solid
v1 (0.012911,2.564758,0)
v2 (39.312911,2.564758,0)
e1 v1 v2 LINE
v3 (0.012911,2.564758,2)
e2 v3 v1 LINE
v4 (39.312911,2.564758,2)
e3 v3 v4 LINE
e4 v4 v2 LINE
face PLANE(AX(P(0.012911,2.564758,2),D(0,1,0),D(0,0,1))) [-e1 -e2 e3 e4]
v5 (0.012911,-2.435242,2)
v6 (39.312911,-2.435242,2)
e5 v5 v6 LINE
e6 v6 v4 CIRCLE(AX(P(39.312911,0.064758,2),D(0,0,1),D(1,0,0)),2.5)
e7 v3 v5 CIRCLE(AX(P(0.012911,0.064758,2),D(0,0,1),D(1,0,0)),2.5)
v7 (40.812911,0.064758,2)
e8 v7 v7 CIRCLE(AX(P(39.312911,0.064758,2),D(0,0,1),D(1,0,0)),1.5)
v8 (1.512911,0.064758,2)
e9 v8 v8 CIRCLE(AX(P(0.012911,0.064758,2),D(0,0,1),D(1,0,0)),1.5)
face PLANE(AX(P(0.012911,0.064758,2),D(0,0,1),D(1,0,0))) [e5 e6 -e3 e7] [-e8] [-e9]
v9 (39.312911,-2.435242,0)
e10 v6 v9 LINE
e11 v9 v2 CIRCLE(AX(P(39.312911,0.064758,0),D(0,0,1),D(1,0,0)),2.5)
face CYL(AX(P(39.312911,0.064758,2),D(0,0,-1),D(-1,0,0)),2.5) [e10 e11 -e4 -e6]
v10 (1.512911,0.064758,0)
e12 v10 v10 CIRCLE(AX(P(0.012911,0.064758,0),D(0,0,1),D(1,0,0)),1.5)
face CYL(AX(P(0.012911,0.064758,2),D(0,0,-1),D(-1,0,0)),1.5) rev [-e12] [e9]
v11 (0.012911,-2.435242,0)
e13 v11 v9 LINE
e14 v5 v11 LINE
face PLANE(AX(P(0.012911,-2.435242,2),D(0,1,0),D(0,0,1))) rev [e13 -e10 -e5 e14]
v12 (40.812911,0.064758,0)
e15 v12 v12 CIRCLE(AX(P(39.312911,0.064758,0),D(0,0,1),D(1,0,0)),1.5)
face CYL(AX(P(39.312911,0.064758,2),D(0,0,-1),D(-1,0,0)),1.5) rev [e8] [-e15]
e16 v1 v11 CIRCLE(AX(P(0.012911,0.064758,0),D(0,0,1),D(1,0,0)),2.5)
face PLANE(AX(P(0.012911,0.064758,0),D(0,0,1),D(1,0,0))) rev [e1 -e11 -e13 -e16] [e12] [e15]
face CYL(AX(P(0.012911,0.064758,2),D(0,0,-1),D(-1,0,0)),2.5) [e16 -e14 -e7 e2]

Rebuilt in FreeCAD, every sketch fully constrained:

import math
import FreeCAD as App
import Part
import Sketcher
Q = App.Units.Quantity

doc = App.newDocument("Part")
body = doc.addObject("PartDesign::Body", "Body")

# Sketch on XY plane
sketch1 = body.newObject("Sketcher::SketchObject", "Sketch")
sketch1.AttachmentSupport = (doc.getObject("XY_Plane"), [""])
sketch1.MapMode = "FlatFace"
sketch1.addGeometry(Part.LineSegment(App.Vector(39.3, 2.6, 0), App.Vector(0, 2.6, 0)), False)
sketch1.addGeometry(Part.ArcOfCircle(Part.Circle(App.Vector(0, 0.1, 0), App.Vector(0, 0, 1), 2.5), math.radians(90), math.radians(270)), False)
sketch1.addGeometry(Part.LineSegment(App.Vector(0, -2.4, 0), App.Vector(39.3, -2.4, 0)), False)
sketch1.addGeometry(Part.ArcOfCircle(Part.Circle(App.Vector(39.3, 0.1, 0), App.Vector(0, 0, 1), 2.5), math.radians(-90), math.radians(90)), False)
sketch1.addGeometry(Part.Circle(App.Vector(39.3, 0.1, 0), App.Vector(0, 0, 1), 1.5), False)
sketch1.addGeometry(Part.Circle(App.Vector(0, 0.1, 0), App.Vector(0, 0, 1), 1.5), False)
sketch1.addConstraint(Sketcher.Constraint("Tangent", 0, 2, 1, 1))
sketch1.addConstraint(Sketcher.Constraint("Tangent", 1, 2, 2, 1))
sketch1.addConstraint(Sketcher.Constraint("Tangent", 2, 2, 3, 1))
sketch1.addConstraint(Sketcher.Constraint("Tangent", 3, 2, 0, 1))
sketch1.addConstraint(Sketcher.Constraint("Horizontal", 0))
sketch1.addConstraint(Sketcher.Constraint("Horizontal", 2))
sketch1.addConstraint(Sketcher.Constraint("Coincident", 4, 3, 3, 3))
sketch1.addConstraint(Sketcher.Constraint("Coincident", 5, 3, 1, 3))
sketch1.addConstraint(Sketcher.Constraint("Equal", 4, 5))
sketch1.addConstraint(Sketcher.Constraint("Diameter", 4, Q("3 mm")))
sketch1.addConstraint(Sketcher.Constraint("Radius", 1, Q("2.5 mm")))
sketch1.addConstraint(Sketcher.Constraint("DistanceX", 0, 2, 0, 1, Q("39.3 mm")))
sketch1.addConstraint(Sketcher.Constraint("DistanceX", -1, 1, 1, 3, Q("0.012911 mm")))
sketch1.addConstraint(Sketcher.Constraint("DistanceY", -1, 1, 1, 3, Q("0.064758 mm")))
pad1 = body.newObject("PartDesign::Pad", "Pad")
pad1.Profile = sketch1
pad1.Length = 2

doc.recompute()
